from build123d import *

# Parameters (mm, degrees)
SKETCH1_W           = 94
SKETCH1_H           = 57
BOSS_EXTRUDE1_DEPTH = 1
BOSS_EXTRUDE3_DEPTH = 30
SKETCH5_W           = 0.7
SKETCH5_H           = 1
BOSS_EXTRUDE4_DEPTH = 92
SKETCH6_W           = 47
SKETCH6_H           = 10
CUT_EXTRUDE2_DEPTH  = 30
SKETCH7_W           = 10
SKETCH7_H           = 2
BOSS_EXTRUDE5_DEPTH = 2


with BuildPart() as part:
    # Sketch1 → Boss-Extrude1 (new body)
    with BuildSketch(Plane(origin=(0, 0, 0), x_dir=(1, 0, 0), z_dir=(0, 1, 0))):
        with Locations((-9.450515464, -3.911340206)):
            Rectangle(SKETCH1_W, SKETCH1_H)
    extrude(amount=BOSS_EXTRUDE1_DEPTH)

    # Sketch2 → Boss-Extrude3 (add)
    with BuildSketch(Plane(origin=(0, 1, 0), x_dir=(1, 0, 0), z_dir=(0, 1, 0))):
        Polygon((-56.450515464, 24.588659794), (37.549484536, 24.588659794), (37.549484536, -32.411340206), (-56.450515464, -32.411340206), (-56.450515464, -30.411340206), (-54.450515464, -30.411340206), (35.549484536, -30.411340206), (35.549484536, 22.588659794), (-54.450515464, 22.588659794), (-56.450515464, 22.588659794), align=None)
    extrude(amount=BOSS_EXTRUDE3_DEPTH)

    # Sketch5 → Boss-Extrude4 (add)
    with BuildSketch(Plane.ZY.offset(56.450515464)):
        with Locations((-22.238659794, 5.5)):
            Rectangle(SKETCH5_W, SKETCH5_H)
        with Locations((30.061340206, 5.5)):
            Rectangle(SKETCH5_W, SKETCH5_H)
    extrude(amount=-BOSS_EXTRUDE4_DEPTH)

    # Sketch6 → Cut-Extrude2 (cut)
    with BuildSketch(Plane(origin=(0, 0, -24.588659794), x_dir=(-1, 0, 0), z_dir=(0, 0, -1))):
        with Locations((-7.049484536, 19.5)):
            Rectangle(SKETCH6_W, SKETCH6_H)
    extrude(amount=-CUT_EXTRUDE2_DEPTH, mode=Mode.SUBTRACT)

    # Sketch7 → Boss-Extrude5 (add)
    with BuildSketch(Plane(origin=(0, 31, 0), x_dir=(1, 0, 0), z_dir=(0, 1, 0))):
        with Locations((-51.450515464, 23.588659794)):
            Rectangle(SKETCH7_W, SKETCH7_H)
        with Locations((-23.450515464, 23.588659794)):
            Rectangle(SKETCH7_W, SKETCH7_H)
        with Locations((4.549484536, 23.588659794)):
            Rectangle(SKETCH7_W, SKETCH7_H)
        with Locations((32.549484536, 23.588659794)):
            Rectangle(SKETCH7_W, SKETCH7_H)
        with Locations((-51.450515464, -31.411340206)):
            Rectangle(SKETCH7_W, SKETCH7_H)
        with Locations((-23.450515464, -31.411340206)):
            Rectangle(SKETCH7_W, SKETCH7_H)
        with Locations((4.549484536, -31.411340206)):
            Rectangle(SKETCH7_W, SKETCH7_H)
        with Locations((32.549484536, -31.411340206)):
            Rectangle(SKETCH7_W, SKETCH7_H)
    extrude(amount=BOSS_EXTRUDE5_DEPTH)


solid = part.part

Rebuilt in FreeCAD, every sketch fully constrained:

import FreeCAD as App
import Part
import Sketcher
Q = App.Units.Quantity

doc = App.newDocument("Part")
body = doc.addObject("PartDesign::Body", "Body")

sketch1 = doc.addObject("Sketcher::SketchObject", "Sketch")
body.addObject(sketch1)
sketch1.AttachmentSupport = (doc.XZ_Plane, [""])
sketch1.MapMode = "FlatFace"
sketch1.addGeometry(Part.LineSegment(App.Vector(-56, -25, 0), App.Vector(-56, 32, 0)), False)
sketch1.addGeometry(Part.LineSegment(App.Vector(-56, 32, 0), App.Vector(38, 32, 0)), False)
sketch1.addGeometry(Part.LineSegment(App.Vector(38, 32, 0), App.Vector(38, -25, 0)), False)
sketch1.addGeometry(Part.LineSegment(App.Vector(38, -25, 0), App.Vector(-56, -25, 0)), False)
sketch1.addConstraint(Sketcher.Constraint("Coincident", 0, 2, 1, 1))
sketch1.addConstraint(Sketcher.Constraint("Coincident", 1, 2, 2, 1))
sketch1.addConstraint(Sketcher.Constraint("Coincident", 2, 2, 3, 1))
sketch1.addConstraint(Sketcher.Constraint("Coincident", 3, 2, 0, 1))
sketch1.addConstraint(Sketcher.Constraint("Vertical", 0))
sketch1.addConstraint(Sketcher.Constraint("Horizontal", 1))
sketch1.addConstraint(Sketcher.Constraint("Vertical", 2))
sketch1.addConstraint(Sketcher.Constraint("Horizontal", 3))
sketch1.addConstraint(Sketcher.Constraint("DistanceX", 1, 1, 1, 2, Q("94 mm")))
sketch1.addConstraint(Sketcher.Constraint("DistanceY", 0, 1, 0, 2, Q("57 mm")))
sketch1.addConstraint(Sketcher.Constraint("DistanceY", -1, 1, 0, 2, Q("32.41134 mm")))
sketch1.addConstraint(Sketcher.Constraint("DistanceX", 0, 2, -1, 1, Q("56.450515 mm")))
pad1 = doc.addObject("PartDesign::Pad", "Pad")
body.addObject(pad1)
pad1.Profile = sketch1
pad1.Length = 1
pad1.Reversed = True

sketch2 = doc.addObject("Sketcher::SketchObject", "Sketch001")
body.addObject(sketch2)
sketch2.AttachmentSupport = (doc.XZ_Plane, [""])
sketch2.MapMode = "FlatFace"
sketch2.AttachmentOffset = App.Placement(App.Vector(0, 0, -1), App.Rotation())
sketch2.addGeometry(Part.LineSegment(App.Vector(37.5, -24.6, 0), App.Vector(-56.5, -24.6, 0)), False)
sketch2.addGeometry(Part.LineSegment(App.Vector(-56.5, -24.6, 0), App.Vector(-56.5, -22.6, 0)), False)
sketch2.addGeometry(Part.LineSegment(App.Vector(-56.5, -22.6, 0), App.Vector(35.5, -22.6, 0)), False)
sketch2.addGeometry(Part.LineSegment(App.Vector(35.5, -22.6, 0), App.Vector(35.5, 30.4, 0)), False)
sketch2.addGeometry(Part.LineSegment(App.Vector(35.5, 30.4, 0), App.Vector(-56.5, 30.4, 0)), False)
sketch2.addGeometry(Part.LineSegment(App.Vector(-56.5, 30.4, 0), App.Vector(-56.5, 32.4, 0)), False)
sketch2.addGeometry(Part.LineSegment(App.Vector(-56.5, 32.4, 0), App.Vector(37.5, 32.4, 0)), False)
sketch2.addGeometry(Part.LineSegment(App.Vector(37.5, 32.4, 0), App.Vector(37.5, -24.6, 0)), False)
sketch2.addConstraint(Sketcher.Constraint("Coincident", 0, 2, 1, 1))
sketch2.addConstraint(Sketcher.Constraint("Coincident", 1, 2, 2, 1))
sketch2.addConstraint(Sketcher.Constraint("Coincident", 2, 2, 3, 1))
sketch2.addConstraint(Sketcher.Constraint("Coincident", 3, 2, 4, 1))
sketch2.addConstraint(Sketcher.Constraint("Coincident", 4, 2, 5, 1))
sketch2.addConstraint(Sketcher.Constraint("Coincident", 5, 2, 6, 1))
sketch2.addConstraint(Sketcher.Constraint("Coincident", 6, 2, 7, 1))
sketch2.addConstraint(Sketcher.Constraint("Coincident", 7, 2, 0, 1))
sketch2.addConstraint(Sketcher.Constraint("Horizontal", 0))
sketch2.addConstraint(Sketcher.Constraint("Vertical", 1))
sketch2.addConstraint(Sketcher.Constraint("Horizontal", 2))
sketch2.addConstraint(Sketcher.Constraint("Vertical", 3))
sketch2.addConstraint(Sketcher.Constraint("Horizontal", 4))
sketch2.addConstraint(Sketcher.Constraint("Vertical", 5))
sketch2.addConstraint(Sketcher.Constraint("Horizontal", 6))
sketch2.addConstraint(Sketcher.Constraint("Vertical", 7))
sketch2.addConstraint(Sketcher.Constraint("Vertical", 1, 2, 4, 2))
sketch2.addConstraint(Sketcher.Constraint("Equal", 1, 5))
sketch2.addConstraint(Sketcher.Constraint("DistanceX", 0, 2, 0, 1, Q("94 mm")))
sketch2.addConstraint(Sketcher.Constraint("DistanceX", 2, 1, 2, 2, Q("92 mm")))
sketch2.addConstraint(Sketcher.Constraint("DistanceY", 1, 1, 1, 2, Q("2 mm")))
sketch2.addConstraint(Sketcher.Constraint("DistanceY", 3, 1, 3, 2, Q("53 mm")))
sketch2.addConstraint(Sketcher.Constraint("DistanceY", 0, 2, -1, 1, Q("24.58866 mm")))
sketch2.addConstraint(Sketcher.Constraint("DistanceX", 0, 2, -1, 1, Q("56.450515 mm")))
pad2 = doc.addObject("PartDesign::Pad", "Pad001")
body.addObject(pad2)
pad2.Profile = sketch2
pad2.Length = 30
pad2.Reversed = True

sketch3 = doc.addObject("Sketcher::SketchObject", "Sketch002")
body.addObject(sketch3)
sketch3.AttachmentSupport = (doc.YZ_Plane, [""])
sketch3.MapMode = "FlatFace"
sketch3.AttachmentOffset = App.Placement(App.Vector(0, 0, -56.450515), App.Rotation())
sketch3.addGeometry(Part.LineSegment(App.Vector(6, -22.6, 0), App.Vector(5, -22.6, 0)), False)
sketch3.addGeometry(Part.LineSegment(App.Vector(5, -22.6, 0), App.Vector(5, -21.9, 0)), False)
sketch3.addGeometry(Part.LineSegment(App.Vector(5, -21.9, 0), App.Vector(6, -21.9, 0)), False)
sketch3.addGeometry(Part.LineSegment(App.Vector(6, -21.9, 0), App.Vector(6, -22.6, 0)), False)
sketch3.addGeometry(Part.LineSegment(App.Vector(6, 29.7, 0), App.Vector(5, 29.7, 0)), False)
sketch3.addGeometry(Part.LineSegment(App.Vector(5, 29.7, 0), App.Vector(5, 30.4, 0)), False)
sketch3.addGeometry(Part.LineSegment(App.Vector(5, 30.4, 0), App.Vector(6, 30.4, 0)), False)
sketch3.addGeometry(Part.LineSegment(App.Vector(6, 30.4, 0), App.Vector(6, 29.7, 0)), False)
sketch3.addConstraint(Sketcher.Constraint("Coincident", 0, 2, 1, 1))
sketch3.addConstraint(Sketcher.Constraint("Coincident", 1, 2, 2, 1))
sketch3.addConstraint(Sketcher.Constraint("Coincident", 2, 2, 3, 1))
sketch3.addConstraint(Sketcher.Constraint("Coincident", 3, 2, 0, 1))
sketch3.addConstraint(Sketcher.Constraint("Coincident", 4, 2, 5, 1))
sketch3.addConstraint(Sketcher.Constraint("Coincident", 5, 2, 6, 1))
sketch3.addConstraint(Sketcher.Constraint("Coincident", 6, 2, 7, 1))
sketch3.addConstraint(Sketcher.Constraint("Coincident", 7, 2, 4, 1))
sketch3.addConstraint(Sketcher.Constraint("Horizontal", 0))
sketch3.addConstraint(Sketcher.Constraint("Vertical", 1))
sketch3.addConstraint(Sketcher.Constraint("Horizontal", 2))
sketch3.addConstraint(Sketcher.Constraint("Vertical", 3))
sketch3.addConstraint(Sketcher.Constraint("Horizontal", 4))
sketch3.addConstraint(Sketcher.Constraint("Vertical", 5))
sketch3.addConstraint(Sketcher.Constraint("Horizontal", 6))
sketch3.addConstraint(Sketcher.Constraint("Vertical", 7))
sketch3.addConstraint(Sketcher.Constraint("Vertical", 1, 2, 4, 2))
sketch3.addConstraint(Sketcher.Constraint("Vertical", 3, 2, 6, 2))
sketch3.addConstraint(Sketcher.Constraint("Equal", 3, 5))
sketch3.addConstraint(Sketcher.Constraint("DistanceX", 0, 2, 0, 1, Q("1 mm")))
sketch3.addConstraint(Sketcher.Constraint("DistanceY", 1, 1, 1, 2, Q("0.7 mm")))
sketch3.addConstraint(Sketcher.Constraint("DistanceX", -1, 1, 0, 2, Q("5 mm")))
sketch3.addConstraint(Sketcher.Constraint("DistanceY", 0, 2, 5, 2, Q("53 mm")))
sketch3.addConstraint(Sketcher.Constraint("DistanceY", 0, 2, -1, 1, Q("22.58866 mm")))
pad3 = doc.addObject("PartDesign::Pad", "Pad002")
body.addObject(pad3)
pad3.Profile = sketch3
pad3.Length = 92

sketch4 = doc.addObject("Sketcher::SketchObject", "Sketch003")
body.addObject(sketch4)
sketch4.AttachmentSupport = (doc.XY_Plane, [""])
sketch4.MapMode = "FlatFace"
sketch4.AttachmentOffset = App.Placement(App.Vector(0, 0, -24.58866), App.Rotation())
sketch4.addGeometry(Part.LineSegment(App.Vector(31, 24, 0), App.Vector(31, 14, 0)), False)
sketch4.addGeometry(Part.LineSegment(App.Vector(31, 14, 0), App.Vector(-16, 14, 0)), False)
sketch4.addGeometry(Part.LineSegment(App.Vector(-16, 14, 0), App.Vector(-16, 24, 0)), False)
sketch4.addGeometry(Part.LineSegment(App.Vector(-16, 24, 0), App.Vector(31, 24, 0)), False)
sketch4.addConstraint(Sketcher.Constraint("Coincident", 0, 2, 1, 1))
sketch4.addConstraint(Sketcher.Constraint("Coincident", 1, 2, 2, 1))
sketch4.addConstraint(Sketcher.Constraint("Coincident", 2, 2, 3, 1))
sketch4.addConstraint(Sketcher.Constraint("Coincident", 3, 2, 0, 1))
sketch4.addConstraint(Sketcher.Constraint("Vertical", 0))
sketch4.addConstraint(Sketcher.Constraint("Horizontal", 1))
sketch4.addConstraint(Sketcher.Constraint("Vertical", 2))
sketch4.addConstraint(Sketcher.Constraint("Horizontal", 3))
sketch4.addConstraint(Sketcher.Constraint("DistanceX", 1, 2, 1, 1, Q("47 mm")))
sketch4.addConstraint(Sketcher.Constraint("DistanceY", 0, 2, 0, 1, Q("10 mm")))
sketch4.addConstraint(Sketcher.Constraint("DistanceY", -1, 1, 0, 2, Q("14.5 mm")))
sketch4.addConstraint(Sketcher.Constraint("DistanceX", -1, 1, 0, 2, Q("30.549485 mm")))
pocket1 = doc.addObject("PartDesign::Pocket", "Pocket")
body.addObject(pocket1)
pocket1.Profile = sketch4
pocket1.Length = 30
pocket1.Reversed = True

sketch5 = doc.addObject("Sketcher::SketchObject", "Sketch004")
body.addObject(sketch5)
sketch5.AttachmentSupport = (doc.XZ_Plane, [""])
sketch5.MapMode = "FlatFace"
sketch5.AttachmentOffset = App.Placement(App.Vector(0, 0, -31), App.Rotation())
sketch5.addGeometry(Part.LineSegment(App.Vector(-56.5, -24.6, 0), App.Vector(-56.5, -22.6, 0)), False)
sketch5.addGeometry(Part.LineSegment(App.Vector(-56.5, -22.6, 0), App.Vector(-46.5, -22.6, 0)), False)
sketch5.addGeometry(Part.LineSegment(App.Vector(-46.5, -22.6, 0), App.Vector(-46.5, -24.6, 0)), False)
sketch5.addGeometry(Part.LineSegment(App.Vector(-46.5, -24.6, 0), App.Vector(-56.5, -24.6, 0)), False)
sketch5.addGeometry(Part.LineSegment(App.Vector(-28.5, -24.6, 0), App.Vector(-28.5, -22.6, 0)), False)
sketch5.addGeometry(Part.LineSegment(App.Vector(-28.5, -22.6, 0), App.Vector(-18.5, -22.6, 0)), False)
sketch5.addGeometry(Part.LineSegment(App.Vector(-18.5, -22.6, 0), App.Vector(-18.5, -24.6, 0)), False)
sketch5.addGeometry(Part.LineSegment(App.Vector(-18.5, -24.6, 0), App.Vector(-28.5, -24.6, 0)), False)
sketch5.addGeometry(Part.LineSegment(App.Vector(-0.5, -24.6, 0), App.Vector(-0.5, -22.6, 0)), False)
sketch5.addGeometry(Part.LineSegment(App.Vector(-0.5, -22.6, 0), App.Vector(9.5, -22.6, 0)), False)
sketch5.addGeometry(Part.LineSegment(App.Vector(9.5, -22.6, 0), App.Vector(9.5, -24.6, 0)), False)
sketch5.addGeometry(Part.LineSegment(App.Vector(9.5, -24.6, 0), App.Vector(-0.5, -24.6, 0)), False)
sketch5.addGeometry(Part.LineSegment(App.Vector(27.5, -24.6, 0), App.Vector(27.5, -22.6, 0)), False)
sketch5.addGeometry(Part.LineSegment(App.Vector(27.5, -22.6, 0), App.Vector(37.5, -22.6, 0)), False)
sketch5.addGeometry(Part.LineSegment(App.Vector(37.5, -22.6, 0), App.Vector(37.5, -24.6, 0)), False)
sketch5.addGeometry(Part.LineSegment(App.Vector(37.5, -24.6, 0), App.Vector(27.5, -24.6, 0)), False)
sketch5.addGeometry(Part.LineSegment(App.Vector(-56.5, 30.4, 0), App.Vector(-56.5, 32.4, 0)), False)
sketch5.addGeometry(Part.LineSegment(App.Vector(-56.5, 32.4, 0), App.Vector(-46.5, 32.4, 0)), False)
sketch5.addGeometry(Part.LineSegment(App.Vector(-46.5, 32.4, 0), App.Vector(-46.5, 30.4, 0)), False)
sketch5.addGeometry(Part.LineSegment(App.Vector(-46.5, 30.4, 0), App.Vector(-56.5, 30.4, 0)), False)
sketch5.addGeometry(Part.LineSegment(App.Vector(-28.5, 30.4, 0), App.Vector(-28.5, 32.4, 0)), False)
sketch5.addGeometry(Part.LineSegment(App.Vector(-28.5, 32.4, 0), App.Vector(-18.5, 32.4, 0)), False)
sketch5.addGeometry(Part.LineSegment(App.Vector(-18.5, 32.4, 0), App.Vector(-18.5, 30.4, 0)), False)
sketch5.addGeometry(Part.LineSegment(App.Vector(-18.5, 30.4, 0), App.Vector(-28.5, 30.4, 0)), False)
sketch5.addGeometry(Part.LineSegment(App.Vector(-0.5, 30.4, 0), App.Vector(-0.5, 32.4, 0)), False)
sketch5.addGeometry(Part.LineSegment(App.Vector(-0.5, 32.4, 0), App.Vector(9.5, 32.4, 0)), False)
sketch5.addGeometry(Part.LineSegment(App.Vector(9.5, 32.4, 0), App.Vector(9.5, 30.4, 0)), False)
sketch5.addGeometry(Part.LineSegment(App.Vector(9.5, 30.4, 0), App.Vector(-0.5, 30.4, 0)), False)
sketch5.addGeometry(Part.LineSegment(App.Vector(27.5, 30.4, 0), App.Vector(27.5, 32.4, 0)), False)
sketch5.addGeometry(Part.LineSegment(App.Vector(27.5, 32.4, 0), App.Vector(37.5, 32.4, 0)), False)
sketch5.addGeometry(Part.LineSegment(App.Vector(37.5, 32.4, 0), App.Vector(37.5, 30.4, 0)), False)
sketch5.addGeometry(Part.LineSegment(App.Vector(37.5, 30.4, 0), App.Vector(27.5, 30.4, 0)), False)
sketch5.addConstraint(Sketcher.Constraint("Coincident", 0, 2, 1, 1))
sketch5.addConstraint(Sketcher.Constraint("Coincident", 1, 2, 2, 1))
sketch5.addConstraint(Sketcher.Constraint("Coincident", 2, 2, 3, 1))
sketch5.addConstraint(Sketcher.Constraint("Coincident", 3, 2, 0, 1))
sketch5.addConstraint(Sketcher.Constraint("Coincident", 4, 2, 5, 1))
sketch5.addConstraint(Sketcher.Constraint("Coincident", 5, 2, 6, 1))
sketch5.addConstraint(Sketcher.Constraint("Coincident", 6, 2, 7, 1))
sketch5.addConstraint(Sketcher.Constraint("Coincident", 7, 2, 4, 1))
sketch5.addConstraint(Sketcher.Constraint("Coincident", 8, 2, 9, 1))
sketch5.addConstraint(Sketcher.Constraint("Coincident", 9, 2, 10, 1))
sketch5.addConstraint(Sketcher.Constraint("Coincident", 10, 2, 11, 1))
sketch5.addConstraint(Sketcher.Constraint("Coincident", 11, 2, 8, 1))
sketch5.addConstraint(Sketcher.Constraint("Coincident", 12, 2, 13, 1))
sketch5.addConstraint(Sketcher.Constraint("Coincident", 13, 2, 14, 1))
sketch5.addConstraint(Sketcher.Constraint("Coincident", 14, 2, 15, 1))
sketch5.addConstraint(Sketcher.Constraint("Coincident", 15, 2, 12, 1))
sketch5.addConstraint(Sketcher.Constraint("Coincident", 16, 2, 17, 1))
sketch5.addConstraint(Sketcher.Constraint("Coincident", 17, 2, 18, 1))
sketch5.addConstraint(Sketcher.Constraint("Coincident", 18, 2, 19, 1))
sketch5.addConstraint(Sketcher.Constraint("Coincident", 19, 2, 16, 1))
sketch5.addConstraint(Sketcher.Constraint("Coincident", 20, 2, 21, 1))
sketch5.addConstraint(Sketcher.Constraint("Coincident", 21, 2, 22, 1))
sketch5.addConstraint(Sketcher.Constraint("Coincident", 22, 2, 23, 1))
sketch5.addConstraint(Sketcher.Constraint("Coincident", 23, 2, 20, 1))
sketch5.addConstraint(Sketcher.Constraint("Coincident", 24, 2, 25, 1))
sketch5.addConstraint(Sketcher.Constraint("Coincident", 25, 2, 26, 1))
sketch5.addConstraint(Sketcher.Constraint("Coincident", 26, 2, 27, 1))
sketch5.addConstraint(Sketcher.Constraint("Coincident", 27, 2, 24, 1))
sketch5.addConstraint(Sketcher.Constraint("Coincident", 28, 2, 29, 1))
sketch5.addConstraint(Sketcher.Constraint("Coincident", 29, 2, 30, 1))
sketch5.addConstraint(Sketcher.Constraint("Coincident", 30, 2, 31, 1))
sketch5.addConstraint(Sketcher.Constraint("Coincident", 31, 2, 28, 1))
sketch5.addConstraint(Sketcher.Constraint("Vertical", 0))
sketch5.addConstraint(Sketcher.Constraint("Horizontal", 1))
sketch5.addConstraint(Sketcher.Constraint("Vertical", 2))
sketch5.addConstraint(Sketcher.Constraint("Horizontal", 3))
sketch5.addConstraint(Sketcher.Constraint("Vertical", 4))
sketch5.addConstraint(Sketcher.Constraint("Horizontal", 5))
sketch5.addConstraint(Sketcher.Constraint("Vertical", 6))
sketch5.addConstraint(Sketcher.Constraint("Horizontal", 7))
sketch5.addConstraint(Sketcher.Constraint("Vertical", 8))
sketch5.addConstraint(Sketcher.Constraint("Horizontal", 9))
sketch5.addConstraint(Sketcher.Constraint("Vertical", 10))
sketch5.addConstraint(Sketcher.Constraint("Horizontal", 11))
sketch5.addConstraint(Sketcher.Constraint("Vertical", 12))
sketch5.addConstraint(Sketcher.Constraint("Horizontal", 13))
sketch5.addConstraint(Sketcher.Constraint("Vertical", 14))
sketch5.addConstraint(Sketcher.Constraint("Horizontal", 15))
sketch5.addConstraint(Sketcher.Constraint("Vertical", 16))
sketch5.addConstraint(Sketcher.Constraint("Horizontal", 17))
sketch5.addConstraint(Sketcher.Constraint("Vertical", 18))
sketch5.addConstraint(Sketcher.Constraint("Horizontal", 19))
sketch5.addConstraint(Sketcher.Constraint("Vertical", 20))
sketch5.addConstraint(Sketcher.Constraint("Horizontal", 21))
sketch5.addConstraint(Sketcher.Constraint("Vertical", 22))
sketch5.addConstraint(Sketcher.Constraint("Horizontal", 23))
sketch5.addConstraint(Sketcher.Constraint("Vertical", 24))
sketch5.addConstraint(Sketcher.Constraint("Horizontal", 25))
sketch5.addConstraint(Sketcher.Constraint("Vertical", 26))
sketch5.addConstraint(Sketcher.Constraint("Horizontal", 27))
sketch5.addConstraint(Sketcher.Constraint("Vertical", 28))
sketch5.addConstraint(Sketcher.Constraint("Horizontal", 29))
sketch5.addConstraint(Sketcher.Constraint("Vertical", 30))
sketch5.addConstraint(Sketcher.Constraint("Horizontal", 31))
sketch5.addConstraint(Sketcher.Constraint("Horizontal", 1, 2, 4, 2))
sketch5.addConstraint(Sketcher.Constraint("Horizontal", 3, 2, 6, 2))
sketch5.addConstraint(Sketcher.Constraint("Horizontal", 5, 2, 8, 2))
sketch5.addConstraint(Sketcher.Constraint("Horizontal", 7, 2, 10, 2))
sketch5.addConstraint(Sketcher.Constraint("Horizontal", 9, 2, 12, 2))
sketch5.addConstraint(Sketcher.Constraint("Horizontal", 11, 2, 14, 2))
sketch5.addConstraint(Sketcher.Constraint("Horizontal", 17, 2, 20, 2))
sketch5.addConstraint(Sketcher.Constraint("Horizontal", 19, 2, 22, 2))
sketch5.addConstraint(Sketcher.Constraint("Horizontal", 21, 2, 24, 2))
sketch5.addConstraint(Sketcher.Constraint("Horizontal", 23, 2, 26, 2))
sketch5.addConstraint(Sketcher.Constraint("Horizontal", 25, 2, 28, 2))
sketch5.addConstraint(Sketcher.Constraint("Horizontal", 27, 2, 30, 2))
sketch5.addConstraint(Sketcher.Constraint("Vertical", 3, 2, 16, 2))
sketch5.addConstraint(Sketcher.Constraint("Vertical", 2, 2, 17, 2))
sketch5.addConstraint(Sketcher.Constraint("Vertical", 7, 2, 20, 2))
sketch5.addConstraint(Sketcher.Constraint("Vertical", 6, 2, 21, 2))
sketch5.addConstraint(Sketcher.Constraint("Vertical", 11, 2, 24, 2))
sketch5.addConstraint(Sketcher.Constraint("Vertical", 10, 2, 25, 2))
sketch5.addConstraint(Sketcher.Constraint("Vertical", 15, 2, 28, 2))
sketch5.addConstraint(Sketcher.Constraint("Vertical", 14, 2, 29, 2))
sketch5.addConstraint(Sketcher.Constraint("Equal", 3, 5))
sketch5.addConstraint(Sketcher.Constraint("Equal", 7, 9))
sketch5.addConstraint(Sketcher.Constraint("Equal", 11, 13))
sketch5.addConstraint(Sketcher.Constraint("Equal", 14, 16))
sketch5.addConstraint(Sketcher.Constraint("DistanceX", 1, 1, 1, 2, Q("10 mm")))
sketch5.addConstraint(Sketcher.Constraint("DistanceY", 0, 1, 0, 2, Q("2 mm")))
sketch5.addConstraint(Sketcher.Constraint("DistanceX", 1, 2, 4, 2, Q("18 mm")))
sketch5.addConstraint(Sketcher.Constraint("DistanceX", 5, 2, 8, 2, Q("18 mm")))
sketch5.addConstraint(Sketcher.Constraint("DistanceX", 9, 2, 12, 2, Q("18 mm")))
sketch5.addConstraint(Sketcher.Constraint("DistanceY", 0, 2, 16, 2, Q("55 mm")))
sketch5.addConstraint(Sketcher.Constraint("DistanceY", 0, 2, -1, 1, Q("22.58866 mm")))
sketch5.addConstraint(Sketcher.Constraint("DistanceX", 0, 2, -1, 1, Q("56.450515 mm")))
pad4 = doc.addObject("PartDesign::Pad", "Pad003")
body.addObject(pad4)
pad4.Profile = sketch5
pad4.Length = 2
pad4.Reversed = True

doc.recompute()
